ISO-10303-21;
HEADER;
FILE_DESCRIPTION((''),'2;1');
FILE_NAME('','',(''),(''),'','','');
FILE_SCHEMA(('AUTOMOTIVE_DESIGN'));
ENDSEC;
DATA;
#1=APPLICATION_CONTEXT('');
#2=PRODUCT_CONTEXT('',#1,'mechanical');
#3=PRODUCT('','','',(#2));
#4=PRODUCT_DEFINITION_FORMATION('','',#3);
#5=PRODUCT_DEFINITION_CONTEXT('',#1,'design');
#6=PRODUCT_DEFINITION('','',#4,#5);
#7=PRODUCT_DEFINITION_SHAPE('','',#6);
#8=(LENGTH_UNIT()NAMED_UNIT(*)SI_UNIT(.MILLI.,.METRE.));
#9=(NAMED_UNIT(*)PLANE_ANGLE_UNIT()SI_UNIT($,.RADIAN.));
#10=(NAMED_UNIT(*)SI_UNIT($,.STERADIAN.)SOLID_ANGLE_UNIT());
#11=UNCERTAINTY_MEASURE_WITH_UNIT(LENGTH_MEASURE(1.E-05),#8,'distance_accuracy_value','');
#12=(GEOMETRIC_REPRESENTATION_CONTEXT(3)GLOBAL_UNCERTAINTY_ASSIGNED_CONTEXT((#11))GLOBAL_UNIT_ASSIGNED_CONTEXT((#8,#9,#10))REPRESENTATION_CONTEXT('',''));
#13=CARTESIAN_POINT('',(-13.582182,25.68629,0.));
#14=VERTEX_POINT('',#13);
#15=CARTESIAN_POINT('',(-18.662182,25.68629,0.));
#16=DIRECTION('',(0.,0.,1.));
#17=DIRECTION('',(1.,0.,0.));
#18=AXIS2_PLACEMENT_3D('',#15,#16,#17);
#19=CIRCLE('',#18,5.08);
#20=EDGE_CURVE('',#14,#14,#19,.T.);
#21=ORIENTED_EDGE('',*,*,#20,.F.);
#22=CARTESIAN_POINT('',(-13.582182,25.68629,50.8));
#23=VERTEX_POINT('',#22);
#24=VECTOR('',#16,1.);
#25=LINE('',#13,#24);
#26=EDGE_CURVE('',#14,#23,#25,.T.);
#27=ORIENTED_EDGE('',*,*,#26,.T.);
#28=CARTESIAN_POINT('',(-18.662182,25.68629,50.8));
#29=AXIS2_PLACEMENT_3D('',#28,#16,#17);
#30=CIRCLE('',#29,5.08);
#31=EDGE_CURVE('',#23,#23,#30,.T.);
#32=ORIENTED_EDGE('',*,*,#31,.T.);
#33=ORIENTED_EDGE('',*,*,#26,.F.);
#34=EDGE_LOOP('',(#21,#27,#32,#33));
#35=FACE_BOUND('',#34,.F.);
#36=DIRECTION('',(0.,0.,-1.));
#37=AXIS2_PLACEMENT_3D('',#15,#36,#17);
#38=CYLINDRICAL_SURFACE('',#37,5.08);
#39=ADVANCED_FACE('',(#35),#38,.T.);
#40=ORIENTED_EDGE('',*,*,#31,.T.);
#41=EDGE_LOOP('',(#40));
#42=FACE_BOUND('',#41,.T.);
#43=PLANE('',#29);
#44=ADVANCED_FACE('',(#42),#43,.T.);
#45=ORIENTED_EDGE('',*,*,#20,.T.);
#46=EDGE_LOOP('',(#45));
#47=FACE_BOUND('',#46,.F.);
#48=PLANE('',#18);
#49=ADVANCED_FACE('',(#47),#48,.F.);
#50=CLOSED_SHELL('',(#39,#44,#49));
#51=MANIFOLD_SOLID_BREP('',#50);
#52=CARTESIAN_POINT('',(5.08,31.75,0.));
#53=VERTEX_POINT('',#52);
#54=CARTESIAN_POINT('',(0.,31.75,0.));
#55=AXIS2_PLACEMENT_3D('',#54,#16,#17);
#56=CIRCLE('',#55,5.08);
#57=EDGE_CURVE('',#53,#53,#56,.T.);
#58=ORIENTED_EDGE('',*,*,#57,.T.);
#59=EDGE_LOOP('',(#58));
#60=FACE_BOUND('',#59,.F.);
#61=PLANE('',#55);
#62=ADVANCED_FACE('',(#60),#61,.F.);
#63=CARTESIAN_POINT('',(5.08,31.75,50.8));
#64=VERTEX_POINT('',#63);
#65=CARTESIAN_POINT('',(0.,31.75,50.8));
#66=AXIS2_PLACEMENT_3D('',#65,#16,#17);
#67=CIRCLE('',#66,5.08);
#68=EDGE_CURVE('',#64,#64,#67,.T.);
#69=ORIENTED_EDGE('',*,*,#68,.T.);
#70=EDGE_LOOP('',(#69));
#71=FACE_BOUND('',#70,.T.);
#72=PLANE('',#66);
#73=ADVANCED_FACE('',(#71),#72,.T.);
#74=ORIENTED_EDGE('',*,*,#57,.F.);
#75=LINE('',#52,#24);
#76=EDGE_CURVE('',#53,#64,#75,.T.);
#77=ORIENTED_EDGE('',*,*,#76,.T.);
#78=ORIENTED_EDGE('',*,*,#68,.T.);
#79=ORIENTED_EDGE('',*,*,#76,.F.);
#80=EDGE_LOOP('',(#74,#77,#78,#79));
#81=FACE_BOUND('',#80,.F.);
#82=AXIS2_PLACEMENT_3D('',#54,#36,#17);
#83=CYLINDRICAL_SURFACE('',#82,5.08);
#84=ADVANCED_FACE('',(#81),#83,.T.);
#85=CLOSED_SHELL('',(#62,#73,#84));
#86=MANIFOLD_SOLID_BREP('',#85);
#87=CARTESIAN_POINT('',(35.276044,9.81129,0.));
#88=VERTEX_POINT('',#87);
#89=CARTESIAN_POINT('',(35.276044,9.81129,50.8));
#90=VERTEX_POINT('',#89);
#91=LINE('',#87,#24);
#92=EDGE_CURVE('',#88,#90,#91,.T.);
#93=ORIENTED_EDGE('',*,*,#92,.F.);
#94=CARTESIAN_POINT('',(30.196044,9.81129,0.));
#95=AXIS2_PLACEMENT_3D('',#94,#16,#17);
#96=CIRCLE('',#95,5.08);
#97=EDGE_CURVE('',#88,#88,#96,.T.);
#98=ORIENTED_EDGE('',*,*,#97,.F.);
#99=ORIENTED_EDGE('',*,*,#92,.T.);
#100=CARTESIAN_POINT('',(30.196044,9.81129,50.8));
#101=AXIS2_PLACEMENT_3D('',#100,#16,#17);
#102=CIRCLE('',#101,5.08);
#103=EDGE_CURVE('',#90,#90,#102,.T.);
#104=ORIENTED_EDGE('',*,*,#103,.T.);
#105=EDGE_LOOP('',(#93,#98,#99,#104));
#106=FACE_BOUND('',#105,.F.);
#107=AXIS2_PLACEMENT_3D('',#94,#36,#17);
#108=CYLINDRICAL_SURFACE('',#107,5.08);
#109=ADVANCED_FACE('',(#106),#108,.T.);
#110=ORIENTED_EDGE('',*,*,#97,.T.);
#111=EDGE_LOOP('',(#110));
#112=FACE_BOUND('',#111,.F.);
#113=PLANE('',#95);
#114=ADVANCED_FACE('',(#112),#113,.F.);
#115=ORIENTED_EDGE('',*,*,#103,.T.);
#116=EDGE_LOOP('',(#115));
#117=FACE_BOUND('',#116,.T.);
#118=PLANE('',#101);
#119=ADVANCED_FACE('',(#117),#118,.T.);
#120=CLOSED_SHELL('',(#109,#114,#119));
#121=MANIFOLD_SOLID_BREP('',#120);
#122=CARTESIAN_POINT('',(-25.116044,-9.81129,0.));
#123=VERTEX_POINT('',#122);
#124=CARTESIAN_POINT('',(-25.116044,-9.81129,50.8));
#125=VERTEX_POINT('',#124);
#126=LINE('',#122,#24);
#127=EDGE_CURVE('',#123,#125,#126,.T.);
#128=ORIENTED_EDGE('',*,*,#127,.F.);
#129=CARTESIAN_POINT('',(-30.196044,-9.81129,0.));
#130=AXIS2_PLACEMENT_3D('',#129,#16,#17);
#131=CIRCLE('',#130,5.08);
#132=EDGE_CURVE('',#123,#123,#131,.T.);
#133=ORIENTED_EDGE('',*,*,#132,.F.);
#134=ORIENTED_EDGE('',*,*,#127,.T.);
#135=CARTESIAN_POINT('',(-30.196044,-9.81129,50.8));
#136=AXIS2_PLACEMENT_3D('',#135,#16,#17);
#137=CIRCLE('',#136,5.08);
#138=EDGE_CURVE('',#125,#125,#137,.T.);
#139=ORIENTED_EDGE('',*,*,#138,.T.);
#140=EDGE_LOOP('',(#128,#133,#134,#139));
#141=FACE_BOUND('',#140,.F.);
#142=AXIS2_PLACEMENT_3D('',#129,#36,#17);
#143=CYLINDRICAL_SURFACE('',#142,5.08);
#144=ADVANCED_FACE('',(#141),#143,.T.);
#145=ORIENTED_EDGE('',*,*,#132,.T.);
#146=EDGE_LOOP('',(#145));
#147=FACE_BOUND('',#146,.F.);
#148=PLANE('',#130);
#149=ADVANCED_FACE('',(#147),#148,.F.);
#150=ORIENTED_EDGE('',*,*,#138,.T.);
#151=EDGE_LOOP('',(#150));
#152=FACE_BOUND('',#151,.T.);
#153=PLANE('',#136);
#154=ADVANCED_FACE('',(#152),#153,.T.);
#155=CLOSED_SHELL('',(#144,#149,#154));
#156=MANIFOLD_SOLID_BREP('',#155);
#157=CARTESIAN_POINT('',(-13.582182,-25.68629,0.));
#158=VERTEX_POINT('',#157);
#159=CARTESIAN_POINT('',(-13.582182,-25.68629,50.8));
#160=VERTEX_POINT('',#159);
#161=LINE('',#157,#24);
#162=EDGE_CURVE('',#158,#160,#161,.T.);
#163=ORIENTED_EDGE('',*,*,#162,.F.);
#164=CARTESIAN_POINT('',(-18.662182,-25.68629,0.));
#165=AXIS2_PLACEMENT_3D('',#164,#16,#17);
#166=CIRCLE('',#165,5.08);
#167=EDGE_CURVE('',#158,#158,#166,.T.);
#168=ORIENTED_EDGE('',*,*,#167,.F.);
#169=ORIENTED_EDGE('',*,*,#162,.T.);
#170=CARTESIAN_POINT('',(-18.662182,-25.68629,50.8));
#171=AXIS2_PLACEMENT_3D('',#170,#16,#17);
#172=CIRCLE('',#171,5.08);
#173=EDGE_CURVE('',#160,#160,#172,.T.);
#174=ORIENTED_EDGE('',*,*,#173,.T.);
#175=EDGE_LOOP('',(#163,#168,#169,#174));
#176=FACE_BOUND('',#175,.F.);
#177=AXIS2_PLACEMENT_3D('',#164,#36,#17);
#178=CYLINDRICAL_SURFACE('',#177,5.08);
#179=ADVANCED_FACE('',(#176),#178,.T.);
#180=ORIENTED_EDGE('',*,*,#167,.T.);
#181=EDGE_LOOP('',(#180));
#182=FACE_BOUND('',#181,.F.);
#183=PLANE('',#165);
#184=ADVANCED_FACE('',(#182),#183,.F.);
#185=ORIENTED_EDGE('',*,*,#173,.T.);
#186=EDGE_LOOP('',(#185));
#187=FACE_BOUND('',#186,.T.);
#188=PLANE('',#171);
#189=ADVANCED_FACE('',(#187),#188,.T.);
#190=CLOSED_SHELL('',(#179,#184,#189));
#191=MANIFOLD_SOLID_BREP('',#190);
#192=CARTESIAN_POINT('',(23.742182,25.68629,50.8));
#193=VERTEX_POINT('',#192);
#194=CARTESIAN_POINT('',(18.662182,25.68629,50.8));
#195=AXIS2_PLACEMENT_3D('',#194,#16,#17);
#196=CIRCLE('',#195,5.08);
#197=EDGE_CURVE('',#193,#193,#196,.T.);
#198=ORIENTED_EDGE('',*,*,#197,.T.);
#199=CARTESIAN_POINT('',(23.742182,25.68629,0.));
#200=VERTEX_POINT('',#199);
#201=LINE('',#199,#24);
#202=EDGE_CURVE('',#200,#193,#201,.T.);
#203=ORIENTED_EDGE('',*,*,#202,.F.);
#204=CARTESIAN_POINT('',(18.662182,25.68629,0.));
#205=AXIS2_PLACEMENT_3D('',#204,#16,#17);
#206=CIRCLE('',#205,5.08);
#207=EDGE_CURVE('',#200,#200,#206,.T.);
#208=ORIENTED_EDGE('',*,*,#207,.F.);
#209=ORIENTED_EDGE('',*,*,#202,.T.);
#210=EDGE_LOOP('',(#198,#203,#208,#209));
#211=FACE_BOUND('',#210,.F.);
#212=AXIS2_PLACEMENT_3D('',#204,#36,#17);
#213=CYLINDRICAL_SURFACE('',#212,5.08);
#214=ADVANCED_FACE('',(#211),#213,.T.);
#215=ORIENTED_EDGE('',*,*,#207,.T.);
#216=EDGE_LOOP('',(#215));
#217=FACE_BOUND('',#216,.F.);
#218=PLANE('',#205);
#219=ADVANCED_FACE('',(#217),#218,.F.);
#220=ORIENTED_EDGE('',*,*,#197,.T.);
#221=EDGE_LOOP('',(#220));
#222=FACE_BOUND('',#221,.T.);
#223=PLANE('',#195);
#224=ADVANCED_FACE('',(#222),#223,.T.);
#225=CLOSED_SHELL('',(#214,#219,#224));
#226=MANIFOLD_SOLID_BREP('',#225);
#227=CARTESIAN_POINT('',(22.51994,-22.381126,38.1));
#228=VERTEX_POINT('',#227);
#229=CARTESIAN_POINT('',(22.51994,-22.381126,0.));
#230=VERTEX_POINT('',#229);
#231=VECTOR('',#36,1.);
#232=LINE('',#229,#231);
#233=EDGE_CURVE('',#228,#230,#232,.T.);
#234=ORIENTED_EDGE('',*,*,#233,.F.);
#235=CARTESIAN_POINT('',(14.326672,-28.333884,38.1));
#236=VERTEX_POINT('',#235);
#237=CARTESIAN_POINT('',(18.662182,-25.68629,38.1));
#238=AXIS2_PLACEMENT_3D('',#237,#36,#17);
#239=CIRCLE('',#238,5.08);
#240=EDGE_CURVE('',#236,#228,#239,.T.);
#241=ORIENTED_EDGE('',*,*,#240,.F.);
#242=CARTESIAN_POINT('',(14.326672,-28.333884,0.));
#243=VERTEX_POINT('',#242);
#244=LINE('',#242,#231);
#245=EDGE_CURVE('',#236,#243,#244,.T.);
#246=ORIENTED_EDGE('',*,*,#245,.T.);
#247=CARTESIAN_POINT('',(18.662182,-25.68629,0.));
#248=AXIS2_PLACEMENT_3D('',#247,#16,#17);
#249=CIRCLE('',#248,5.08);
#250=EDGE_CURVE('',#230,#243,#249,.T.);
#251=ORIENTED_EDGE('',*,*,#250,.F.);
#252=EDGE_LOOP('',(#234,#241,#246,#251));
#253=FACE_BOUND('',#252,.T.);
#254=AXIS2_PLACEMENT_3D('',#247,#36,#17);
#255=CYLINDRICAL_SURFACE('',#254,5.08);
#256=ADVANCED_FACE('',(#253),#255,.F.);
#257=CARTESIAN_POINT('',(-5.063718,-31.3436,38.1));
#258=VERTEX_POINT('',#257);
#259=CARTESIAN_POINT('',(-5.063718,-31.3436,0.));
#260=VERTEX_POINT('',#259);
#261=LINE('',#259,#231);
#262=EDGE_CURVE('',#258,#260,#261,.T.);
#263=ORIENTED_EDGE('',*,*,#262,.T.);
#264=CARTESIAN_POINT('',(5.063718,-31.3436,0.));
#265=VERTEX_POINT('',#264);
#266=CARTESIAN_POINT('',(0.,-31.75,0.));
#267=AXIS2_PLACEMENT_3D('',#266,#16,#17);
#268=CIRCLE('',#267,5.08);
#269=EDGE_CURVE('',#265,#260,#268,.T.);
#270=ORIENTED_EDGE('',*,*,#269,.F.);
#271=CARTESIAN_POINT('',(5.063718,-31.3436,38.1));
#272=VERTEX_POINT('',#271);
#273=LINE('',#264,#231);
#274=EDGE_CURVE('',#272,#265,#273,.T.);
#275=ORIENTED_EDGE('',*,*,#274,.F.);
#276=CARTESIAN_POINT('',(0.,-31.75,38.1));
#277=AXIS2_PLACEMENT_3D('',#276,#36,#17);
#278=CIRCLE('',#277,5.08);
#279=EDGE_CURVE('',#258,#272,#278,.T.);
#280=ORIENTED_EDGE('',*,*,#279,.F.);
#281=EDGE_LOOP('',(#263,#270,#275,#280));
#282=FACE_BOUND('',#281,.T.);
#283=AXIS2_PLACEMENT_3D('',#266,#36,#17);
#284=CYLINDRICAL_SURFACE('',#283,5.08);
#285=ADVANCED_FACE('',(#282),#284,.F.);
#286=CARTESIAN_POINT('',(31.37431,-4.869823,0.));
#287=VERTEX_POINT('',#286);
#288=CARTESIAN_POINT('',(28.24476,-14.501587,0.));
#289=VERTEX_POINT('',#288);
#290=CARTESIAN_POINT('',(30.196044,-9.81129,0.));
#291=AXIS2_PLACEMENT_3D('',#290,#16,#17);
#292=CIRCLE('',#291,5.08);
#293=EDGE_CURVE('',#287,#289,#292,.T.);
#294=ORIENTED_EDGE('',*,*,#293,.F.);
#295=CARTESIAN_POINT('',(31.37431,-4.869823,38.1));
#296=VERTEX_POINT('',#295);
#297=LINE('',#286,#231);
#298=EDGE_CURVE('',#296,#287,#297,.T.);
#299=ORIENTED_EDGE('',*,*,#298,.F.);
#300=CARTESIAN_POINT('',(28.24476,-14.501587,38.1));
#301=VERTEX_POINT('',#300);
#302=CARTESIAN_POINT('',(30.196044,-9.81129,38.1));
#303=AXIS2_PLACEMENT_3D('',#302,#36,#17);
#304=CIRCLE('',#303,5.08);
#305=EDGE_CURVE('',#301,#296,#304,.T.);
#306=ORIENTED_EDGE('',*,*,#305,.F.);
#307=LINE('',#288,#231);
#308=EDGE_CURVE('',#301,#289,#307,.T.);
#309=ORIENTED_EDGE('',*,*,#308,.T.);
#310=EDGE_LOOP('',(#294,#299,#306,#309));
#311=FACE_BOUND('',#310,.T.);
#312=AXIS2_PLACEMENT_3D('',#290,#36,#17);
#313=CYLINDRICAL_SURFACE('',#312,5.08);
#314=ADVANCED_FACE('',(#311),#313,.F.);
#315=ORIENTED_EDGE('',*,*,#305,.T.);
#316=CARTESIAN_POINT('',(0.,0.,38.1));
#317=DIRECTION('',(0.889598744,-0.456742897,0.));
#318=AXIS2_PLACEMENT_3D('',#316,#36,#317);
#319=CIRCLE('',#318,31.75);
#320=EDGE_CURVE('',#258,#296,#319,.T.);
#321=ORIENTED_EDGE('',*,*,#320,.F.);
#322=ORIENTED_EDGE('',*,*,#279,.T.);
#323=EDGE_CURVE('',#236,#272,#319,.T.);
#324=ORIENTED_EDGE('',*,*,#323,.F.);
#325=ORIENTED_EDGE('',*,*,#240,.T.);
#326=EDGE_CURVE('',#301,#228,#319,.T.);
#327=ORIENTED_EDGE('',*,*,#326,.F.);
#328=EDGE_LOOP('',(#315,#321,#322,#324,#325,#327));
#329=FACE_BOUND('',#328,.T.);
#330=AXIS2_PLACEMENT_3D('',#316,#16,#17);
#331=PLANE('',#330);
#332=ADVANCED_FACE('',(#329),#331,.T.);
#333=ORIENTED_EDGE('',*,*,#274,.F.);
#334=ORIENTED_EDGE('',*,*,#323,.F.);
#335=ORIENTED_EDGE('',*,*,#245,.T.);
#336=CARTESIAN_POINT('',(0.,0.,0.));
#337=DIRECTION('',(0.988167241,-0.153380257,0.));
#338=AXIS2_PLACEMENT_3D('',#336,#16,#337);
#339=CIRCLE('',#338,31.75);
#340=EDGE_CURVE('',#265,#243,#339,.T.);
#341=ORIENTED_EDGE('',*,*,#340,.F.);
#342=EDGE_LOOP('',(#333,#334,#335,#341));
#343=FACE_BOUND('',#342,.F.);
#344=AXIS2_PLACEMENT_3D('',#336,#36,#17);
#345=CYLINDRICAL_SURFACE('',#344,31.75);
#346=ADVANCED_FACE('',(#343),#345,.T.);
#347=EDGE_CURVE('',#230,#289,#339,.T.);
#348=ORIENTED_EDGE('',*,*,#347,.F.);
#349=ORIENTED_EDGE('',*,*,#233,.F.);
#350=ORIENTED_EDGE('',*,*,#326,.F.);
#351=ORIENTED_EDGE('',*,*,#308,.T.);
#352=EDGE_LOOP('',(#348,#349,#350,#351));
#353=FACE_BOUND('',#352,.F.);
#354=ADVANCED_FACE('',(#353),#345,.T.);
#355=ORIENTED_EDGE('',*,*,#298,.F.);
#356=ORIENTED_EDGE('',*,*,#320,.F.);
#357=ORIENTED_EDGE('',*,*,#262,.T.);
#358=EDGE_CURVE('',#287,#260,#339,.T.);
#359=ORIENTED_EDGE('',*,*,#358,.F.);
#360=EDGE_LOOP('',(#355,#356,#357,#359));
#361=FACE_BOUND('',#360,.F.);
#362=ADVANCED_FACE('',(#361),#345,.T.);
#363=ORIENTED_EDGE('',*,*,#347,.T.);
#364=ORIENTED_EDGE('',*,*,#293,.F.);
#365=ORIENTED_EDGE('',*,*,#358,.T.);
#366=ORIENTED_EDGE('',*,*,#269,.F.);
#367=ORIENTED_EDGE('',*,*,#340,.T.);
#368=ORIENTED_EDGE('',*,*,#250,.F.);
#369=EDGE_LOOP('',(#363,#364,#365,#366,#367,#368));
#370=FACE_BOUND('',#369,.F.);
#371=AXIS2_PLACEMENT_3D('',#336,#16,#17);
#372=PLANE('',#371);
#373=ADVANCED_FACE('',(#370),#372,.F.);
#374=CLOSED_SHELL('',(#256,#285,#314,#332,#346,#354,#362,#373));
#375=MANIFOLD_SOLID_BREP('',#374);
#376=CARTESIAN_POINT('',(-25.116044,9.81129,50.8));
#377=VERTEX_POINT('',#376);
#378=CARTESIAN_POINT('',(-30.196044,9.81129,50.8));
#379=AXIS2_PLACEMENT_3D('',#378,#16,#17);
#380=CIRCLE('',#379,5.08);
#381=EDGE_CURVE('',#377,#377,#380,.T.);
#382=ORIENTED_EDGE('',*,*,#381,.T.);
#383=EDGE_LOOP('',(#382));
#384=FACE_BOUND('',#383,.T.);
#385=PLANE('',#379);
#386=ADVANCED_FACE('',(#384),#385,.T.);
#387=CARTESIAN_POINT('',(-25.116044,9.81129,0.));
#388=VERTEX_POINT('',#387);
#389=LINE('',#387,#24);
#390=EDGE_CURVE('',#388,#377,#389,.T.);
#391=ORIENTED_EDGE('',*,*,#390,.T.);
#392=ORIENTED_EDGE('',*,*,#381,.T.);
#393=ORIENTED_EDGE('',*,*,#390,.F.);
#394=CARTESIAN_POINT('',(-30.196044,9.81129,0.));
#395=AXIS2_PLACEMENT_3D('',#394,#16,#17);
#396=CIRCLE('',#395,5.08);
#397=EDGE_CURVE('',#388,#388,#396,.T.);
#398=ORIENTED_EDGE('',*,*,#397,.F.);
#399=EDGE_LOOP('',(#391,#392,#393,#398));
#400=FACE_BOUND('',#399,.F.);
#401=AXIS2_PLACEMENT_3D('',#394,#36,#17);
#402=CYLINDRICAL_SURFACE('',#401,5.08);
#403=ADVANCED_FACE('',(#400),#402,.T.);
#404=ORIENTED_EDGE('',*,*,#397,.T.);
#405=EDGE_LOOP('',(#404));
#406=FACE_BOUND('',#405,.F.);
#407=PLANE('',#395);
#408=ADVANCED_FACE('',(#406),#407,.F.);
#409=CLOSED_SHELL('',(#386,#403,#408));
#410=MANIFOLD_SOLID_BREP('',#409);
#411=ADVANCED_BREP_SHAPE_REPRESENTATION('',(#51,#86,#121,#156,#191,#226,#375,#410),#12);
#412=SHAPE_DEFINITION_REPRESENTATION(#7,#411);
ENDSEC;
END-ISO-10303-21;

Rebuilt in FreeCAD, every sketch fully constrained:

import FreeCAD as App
import Part
import Sketcher

V = App.Vector
Q = App.Units.Quantity

doc = App.newDocument("Part")
body = doc.addObject("PartDesign::Body", "Body")

sketch1 = body.newObject("Sketcher::SketchObject", "Sketch")
sketch1.AttachmentSupport = (doc.getObject("XY_Plane"), [""])
sketch1.MapMode = "FlatFace"
sketch1.addGeometry(Part.Circle(V(0, 0, 0), V(0, 0, 1), 31.75), False)
sketch1.addConstraint(Sketcher.Constraint("Coincident", 0, 3, -1, 1))
sketch1.addConstraint(Sketcher.Constraint("Diameter", 0, Q("2.5 in")))
pad1 = body.newObject("PartDesign::Pad", "Pad")
pad1.Profile = sketch1
pad1.Length = Q("1.5 in")
body2 = doc.addObject("PartDesign::Body", "Body001")

sketch2 = body2.newObject("Sketcher::SketchObject", "Sketch001")
sketch2.AttachmentSupport = (doc.getObject("XY_Plane001"), [""])
sketch2.MapMode = "FlatFace"
sketch2.addGeometry(Part.Circle(V(0, 31.75, 0), V(0, 0, 1), 5.08), False)
sketch2.addConstraint(Sketcher.Constraint("PointOnObject", 0, 3, -2))
sketch2.addConstraint(Sketcher.Constraint("Diameter", 0, Q("0.4 in")))
sketch2.addConstraint(Sketcher.Constraint("DistanceY", -1, 1, 0, 3, Q("1.25 in")))
pad2 = body2.newObject("PartDesign::Pad", "Pad001")
pad2.Profile = sketch2
pad2.Length = Q("2 in")
body3 = doc.addObject("PartDesign::Body", "Body002")

sketch3 = body3.newObject("Sketcher::SketchObject", "Sketch002")
sketch3.AttachmentSupport = (doc.getObject("XY_Plane002"), [""])
sketch3.MapMode = "FlatFace"
sketch3.addGeometry(Part.Circle(V(-18.662182, 25.68629, 0), V(0, 0, 1), 5.08), False)
sketch3.addConstraint(Sketcher.Constraint("Diameter", 0, Q("0.4 in")))
sketch3.addConstraint(Sketcher.Constraint("DistanceX", 0, 3, -1, 1, Q("18.662182 mm")))
sketch3.addConstraint(Sketcher.Constraint("DistanceY", -1, 1, 0, 3, Q("25.68629 mm")))
pad3 = body3.newObject("PartDesign::Pad", "Pad002")
pad3.Profile = sketch3
pad3.Length = Q("2 in")
body4 = doc.addObject("PartDesign::Body", "Body003")

sketch4 = body4.newObject("Sketcher::SketchObject", "Sketch003")
sketch4.AttachmentSupport = (doc.getObject("XY_Plane003"), [""])
sketch4.MapMode = "FlatFace"
sketch4.addGeometry(Part.Circle(V(-30.196044, 9.81129, 0), V(0, 0, 1), 5.08), False)
sketch4.addConstraint(Sketcher.Constraint("Diameter", 0, Q("0.4 in")))
sketch4.addConstraint(Sketcher.Constraint("DistanceY", -1, 1, 0, 3, Q("9.81129 mm")))
sketch4.addConstraint(Sketcher.Constraint("DistanceX", 0, 3, -1, 1, Q("30.196044 mm")))
pad4 = body4.newObject("PartDesign::Pad", "Pad003")
pad4.Profile = sketch4
pad4.Length = Q("2 in")
body5 = doc.addObject("PartDesign::Body", "Body004")

sketch5 = body5.newObject("Sketcher::SketchObject", "Sketch004")
sketch5.AttachmentSupport = (doc.getObject("XY_Plane004"), [""])
sketch5.MapMode = "FlatFace"
sketch5.addGeometry(Part.Circle(V(-30.196044, -9.81129, 0), V(0, 0, 1), 5.08), False)
sketch5.addConstraint(Sketcher.Constraint("Diameter", 0, Q("0.4 in")))
sketch5.addConstraint(Sketcher.Constraint("DistanceY", 0, 3, -1, 1, Q("9.81129 mm")))
sketch5.addConstraint(Sketcher.Constraint("DistanceX", 0, 3, -1, 1, Q("30.196044 mm")))
pad5 = body5.newObject("PartDesign::Pad", "Pad004")
pad5.Profile = sketch5
pad5.Length = Q("2 in")
body6 = doc.addObject("PartDesign::Body", "Body005")

sketch6 = body6.newObject("Sketcher::SketchObject", "Sketch005")
sketch6.AttachmentSupport = (doc.getObject("XY_Plane005"), [""])
sketch6.MapMode = "FlatFace"
sketch6.addGeometry(Part.Circle(V(-18.662182, -25.68629, 0), V(0, 0, 1), 5.08), False)
sketch6.addConstraint(Sketcher.Constraint("Diameter", 0, Q("0.4 in")))
sketch6.addConstraint(Sketcher.Constraint("DistanceX", 0, 3, -1, 1, Q("18.662182 mm")))
sketch6.addConstraint(Sketcher.Constraint("DistanceY", 0, 3, -1, 1, Q("25.68629 mm")))
pad6 = body6.newObject("PartDesign::Pad", "Pad005")
pad6.Profile = sketch6
pad6.Length = Q("2 in")
body7 = doc.addObject("PartDesign::Body", "Body006")

sketch7 = body7.newObject("Sketcher::SketchObject", "Sketch006")
sketch7.AttachmentSupport = (doc.getObject("XY_Plane006"), [""])
sketch7.MapMode = "FlatFace"
sketch7.addGeometry(Part.Circle(V(0, -31.75, 0), V(0, 0, 1), 5.08), False)
sketch7.addConstraint(Sketcher.Constraint("PointOnObject", 0, 3, -2))
sketch7.addConstraint(Sketcher.Constraint("Diameter", 0, Q("0.4 in")))
sketch7.addConstraint(Sketcher.Constraint("DistanceY", 0, 3, -1, 1, Q("1.25 in")))
pad7 = body7.newObject("PartDesign::Pad", "Pad006")
pad7.Profile = sketch7
pad7.Length = Q("2 in")
body8 = doc.addObject("PartDesign::Body", "Body007")

sketch8 = body8.newObject("Sketcher::SketchObject", "Sketch007")
sketch8.AttachmentSupport = (doc.getObject("XY_Plane007"), [""])
sketch8.MapMode = "FlatFace"
sketch8.addGeometry(Part.Circle(V(18.662182, -25.68629, 0), V(0, 0, 1), 5.08), False)
sketch8.addConstraint(Sketcher.Constraint("Diameter", 0, Q("0.4 in")))
sketch8.addConstraint(Sketcher.Constraint("DistanceX", -1, 1, 0, 3, Q("18.662182 mm")))
sketch8.addConstraint(Sketcher.Constraint("DistanceY", 0, 3, -1, 1, Q("25.68629 mm")))
pad8 = body8.newObject("PartDesign::Pad", "Pad007")
pad8.Profile = sketch8
pad8.Length = Q("2 in")
body9 = doc.addObject("PartDesign::Body", "Body008")

sketch9 = body9.newObject("Sketcher::SketchObject", "Sketch008")
sketch9.AttachmentSupport = (doc.getObject("XY_Plane008"), [""])
sketch9.MapMode = "FlatFace"
sketch9.addGeometry(Part.Circle(V(30.196044, -9.81129, 0), V(0, 0, 1), 5.08), False)
sketch9.addConstraint(Sketcher.Constraint("Diameter", 0, Q("0.4 in")))
sketch9.addConstraint(Sketcher.Constraint("DistanceY", 0, 3, -1, 1, Q("9.81129 mm")))
sketch9.addConstraint(Sketcher.Constraint("DistanceX", -1, 1, 0, 3, Q("30.196044 mm")))
pad9 = body9.newObject("PartDesign::Pad", "Pad008")
pad9.Profile = sketch9
pad9.Length = Q("2 in")
body10 = doc.addObject("PartDesign::Body", "Body009")

sketch10 = body10.newObject("Sketcher::SketchObject", "Sketch009")
sketch10.AttachmentSupport = (doc.getObject("XY_Plane009"), [""])
sketch10.MapMode = "FlatFace"
sketch10.addGeometry(Part.Circle(V(30.196044, 9.81129, 0), V(0, 0, 1), 5.08), False)
sketch10.addConstraint(Sketcher.Constraint("Diameter", 0, Q("0.4 in")))
sketch10.addConstraint(Sketcher.Constraint("DistanceY", -1, 1, 0, 3, Q("9.81129 mm")))
sketch10.addConstraint(Sketcher.Constraint("DistanceX", -1, 1, 0, 3, Q("30.196044 mm")))
pad10 = body10.newObject("PartDesign::Pad", "Pad009")
pad10.Profile = sketch10
pad10.Length = Q("2 in")
body11 = doc.addObject("PartDesign::Body", "Body010")

sketch11 = body11.newObject("Sketcher::SketchObject", "Sketch010")
sketch11.AttachmentSupport = (doc.getObject("XY_Plane010"), [""])
sketch11.MapMode = "FlatFace"
sketch11.addGeometry(Part.Circle(V(18.662182, 25.68629, 0), V(0, 0, 1), 5.08), False)
sketch11.addConstraint(Sketcher.Constraint("Diameter", 0, Q("0.4 in")))
sketch11.addConstraint(Sketcher.Constraint("DistanceX", -1, 1, 0, 3, Q("18.662182 mm")))
sketch11.addConstraint(Sketcher.Constraint("DistanceY", -1, 1, 0, 3, Q("25.68629 mm")))
pad11 = body11.newObject("PartDesign::Pad", "Pad010")
pad11.Profile = sketch11
pad11.Length = Q("2 in")
doc.recompute()

boolean = body.newObject("PartDesign::Boolean", "Boolean")
boolean.Type = "Cut"
boolean.addObjects([body9])
doc.recompute()

boolean2 = body.newObject("PartDesign::Boolean", "Boolean001")
boolean2.Type = "Cut"
boolean2.addObjects([body8])
doc.recompute()

boolean3 = body.newObject("PartDesign::Boolean", "Boolean002")
boolean3.Type = "Cut"
boolean3.addObjects([body7])

doc.recompute()
